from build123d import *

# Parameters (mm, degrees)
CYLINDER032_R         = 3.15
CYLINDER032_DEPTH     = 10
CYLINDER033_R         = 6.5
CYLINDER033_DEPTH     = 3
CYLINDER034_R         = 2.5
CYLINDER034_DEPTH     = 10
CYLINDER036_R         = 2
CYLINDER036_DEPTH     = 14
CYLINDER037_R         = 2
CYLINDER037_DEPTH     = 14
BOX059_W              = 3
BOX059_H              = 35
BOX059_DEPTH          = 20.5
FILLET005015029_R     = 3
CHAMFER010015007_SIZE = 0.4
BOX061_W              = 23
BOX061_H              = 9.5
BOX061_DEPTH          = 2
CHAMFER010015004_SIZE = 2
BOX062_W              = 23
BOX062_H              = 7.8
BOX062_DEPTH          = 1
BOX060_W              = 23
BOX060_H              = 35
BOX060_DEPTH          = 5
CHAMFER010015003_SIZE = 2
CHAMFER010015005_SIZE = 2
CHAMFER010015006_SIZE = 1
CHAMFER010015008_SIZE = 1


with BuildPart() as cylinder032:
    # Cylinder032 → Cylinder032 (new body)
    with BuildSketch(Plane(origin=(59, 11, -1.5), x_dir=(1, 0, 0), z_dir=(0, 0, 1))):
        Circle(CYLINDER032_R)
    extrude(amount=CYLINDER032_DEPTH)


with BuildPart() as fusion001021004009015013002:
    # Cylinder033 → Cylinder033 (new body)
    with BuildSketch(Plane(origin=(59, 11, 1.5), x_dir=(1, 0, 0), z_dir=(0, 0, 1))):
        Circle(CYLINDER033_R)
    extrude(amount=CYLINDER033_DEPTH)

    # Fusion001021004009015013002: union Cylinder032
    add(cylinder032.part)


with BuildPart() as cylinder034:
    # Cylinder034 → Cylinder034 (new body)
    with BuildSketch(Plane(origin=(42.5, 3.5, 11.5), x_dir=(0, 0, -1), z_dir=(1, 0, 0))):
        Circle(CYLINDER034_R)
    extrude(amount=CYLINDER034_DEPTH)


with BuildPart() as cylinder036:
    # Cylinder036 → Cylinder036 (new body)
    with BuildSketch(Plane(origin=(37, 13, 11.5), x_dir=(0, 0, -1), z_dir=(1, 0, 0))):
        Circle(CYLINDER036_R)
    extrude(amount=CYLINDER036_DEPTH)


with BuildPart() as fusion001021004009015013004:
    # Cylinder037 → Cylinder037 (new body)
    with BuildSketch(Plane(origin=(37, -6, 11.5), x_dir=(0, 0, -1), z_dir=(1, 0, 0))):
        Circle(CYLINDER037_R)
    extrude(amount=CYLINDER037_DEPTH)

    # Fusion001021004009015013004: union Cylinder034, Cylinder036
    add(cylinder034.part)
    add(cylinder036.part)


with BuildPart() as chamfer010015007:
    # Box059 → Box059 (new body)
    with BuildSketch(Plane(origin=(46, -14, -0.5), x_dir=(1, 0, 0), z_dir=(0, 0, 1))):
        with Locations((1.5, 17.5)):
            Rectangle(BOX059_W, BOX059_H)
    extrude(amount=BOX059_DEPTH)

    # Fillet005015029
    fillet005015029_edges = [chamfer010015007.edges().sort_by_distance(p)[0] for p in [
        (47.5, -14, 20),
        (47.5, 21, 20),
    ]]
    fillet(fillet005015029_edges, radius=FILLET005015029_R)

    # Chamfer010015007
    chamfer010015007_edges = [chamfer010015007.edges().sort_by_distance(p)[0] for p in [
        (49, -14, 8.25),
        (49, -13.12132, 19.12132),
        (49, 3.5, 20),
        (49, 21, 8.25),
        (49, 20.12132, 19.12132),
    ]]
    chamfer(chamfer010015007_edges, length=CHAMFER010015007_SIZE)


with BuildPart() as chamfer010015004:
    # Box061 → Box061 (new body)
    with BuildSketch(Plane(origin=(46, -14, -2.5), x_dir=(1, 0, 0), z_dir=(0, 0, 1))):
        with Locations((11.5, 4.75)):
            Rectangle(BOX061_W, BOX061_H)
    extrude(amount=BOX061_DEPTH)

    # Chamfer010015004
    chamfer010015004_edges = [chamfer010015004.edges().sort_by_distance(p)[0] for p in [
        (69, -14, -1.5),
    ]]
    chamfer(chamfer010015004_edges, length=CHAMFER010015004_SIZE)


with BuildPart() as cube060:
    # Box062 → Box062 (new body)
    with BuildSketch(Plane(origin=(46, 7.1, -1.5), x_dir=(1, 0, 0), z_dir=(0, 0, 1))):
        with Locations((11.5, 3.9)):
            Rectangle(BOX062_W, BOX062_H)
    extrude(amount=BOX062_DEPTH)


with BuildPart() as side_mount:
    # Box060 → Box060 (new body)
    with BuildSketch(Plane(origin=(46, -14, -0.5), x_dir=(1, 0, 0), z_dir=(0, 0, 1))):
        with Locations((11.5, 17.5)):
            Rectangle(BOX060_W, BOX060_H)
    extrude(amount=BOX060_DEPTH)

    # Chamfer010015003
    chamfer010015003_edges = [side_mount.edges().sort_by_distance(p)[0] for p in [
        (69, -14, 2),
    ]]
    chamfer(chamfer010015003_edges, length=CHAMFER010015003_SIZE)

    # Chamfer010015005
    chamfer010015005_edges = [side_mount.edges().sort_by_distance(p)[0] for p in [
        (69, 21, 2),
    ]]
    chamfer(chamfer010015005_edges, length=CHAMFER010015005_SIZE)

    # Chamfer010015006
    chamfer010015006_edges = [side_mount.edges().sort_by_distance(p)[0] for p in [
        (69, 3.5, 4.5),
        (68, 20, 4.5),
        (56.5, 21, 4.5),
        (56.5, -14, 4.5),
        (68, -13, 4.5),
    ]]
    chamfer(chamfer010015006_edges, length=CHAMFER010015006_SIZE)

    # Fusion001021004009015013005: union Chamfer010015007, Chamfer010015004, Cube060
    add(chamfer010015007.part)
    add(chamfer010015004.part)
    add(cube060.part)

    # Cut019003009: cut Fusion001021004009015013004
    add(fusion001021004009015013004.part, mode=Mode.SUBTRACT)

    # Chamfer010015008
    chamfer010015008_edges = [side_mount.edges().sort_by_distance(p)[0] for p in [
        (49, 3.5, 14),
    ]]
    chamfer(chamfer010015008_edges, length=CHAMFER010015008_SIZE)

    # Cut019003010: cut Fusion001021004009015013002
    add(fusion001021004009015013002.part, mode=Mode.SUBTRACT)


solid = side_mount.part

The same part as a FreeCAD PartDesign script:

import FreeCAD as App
import Part
import Sketcher


def edges_at(feature, points):
    """Names of the edges that pass closest to the given points."""
    edges = feature.Shape.Edges
    near = lambda p: min(range(len(edges)), key=lambda i: edges[i].distToShape(Part.Vertex(*p))[0])
    return sorted({f"Edge{near(p) + 1}" for p in points})


def add_polygon(sketch, points):
    """Adds a closed chain of lines whose ends are joined by coincident constraints."""
    first, n = sketch.GeometryCount, len(points)
    for a, b in zip(points, points[1:] + points[:1]):
        sketch.addGeometry(Part.LineSegment(App.Vector(*a, 0), App.Vector(*b, 0)), False)
    for i in range(n):
        sketch.addConstraint(Sketcher.Constraint("Coincident", first + i, 2, first + (i + 1) % n, 1))

doc = App.newDocument("Part")
params = doc.addObject("Spreadsheet::Sheet", "Params")
for row, (alias, value) in enumerate([
    ("sketch1_diameter", "6.3 mm"),
    ("pad1_length", "10 mm"),
    ("sketch2_diameter", "13 mm"),
    ("pad2_length", "3 mm"),
    ("sketch3_diameter", "5 mm"),
    ("pad3_length", "10 mm"),
    ("sketch4_diameter", "4 mm"),
    ("pad4_length", "14 mm"),
    ("sketch5_diameter", "4 mm"),
    ("pad5_length", "14 mm"),
    ("sketch6_width", "3 mm"),
    ("sketch6_height", "35 mm"),
    ("pad6_length", "20.5 mm"),
    ("fillet_radius", "3 mm"),
    ("chamfer_size", "0.4 mm"),
    ("sketch7_width", "23 mm"),
    ("sketch7_height", "9.5 mm"),
    ("pad7_length", "2 mm"),
    ("chamfer2_size", "2 mm"),
    ("sketch8_width", "23 mm"),
    ("sketch8_height", "7.8 mm"),
    ("pad8_length", "1 mm"),
    ("sketch9_width", "23 mm"),
    ("sketch9_height", "35 mm"),
    ("pad9_length", "5 mm"),
    ("chamfer3_size", "2 mm"),
    ("chamfer4_size", "2 mm"),
    ("chamfer5_size", "1 mm"),
    ("chamfer6_size", "1 mm"),
], start=1):
    params.set(f"A{row}", alias)
    params.set(f"B{row}", "=" + value)
    params.setAlias(f"B{row}", alias)

body = doc.addObject("PartDesign::Body", "Body")

# Sketch on XY plane
sketch1 = body.newObject("Sketcher::SketchObject", "Sketch")
sketch1.AttachmentSupport = (doc.getObject("XY_Plane"), [""])
sketch1.MapMode = "FlatFace"
sketch1.AttachmentOffset = App.Placement(App.Vector(0, 0, -1.5), App.Rotation())
sketch1.addGeometry(Part.Circle(App.Vector(59, 11, 0), App.Vector(0, 0, 1), 3.1), False)
sketch1.addConstraint(Sketcher.Constraint("Diameter", 0, 6.3))
sketch1.addConstraint(Sketcher.Constraint("DistanceX", -1, 1, 0, 3, 59.0))
sketch1.addConstraint(Sketcher.Constraint("DistanceY", -1, 1, 0, 3, 11.0))
sketch1.setExpression("Constraints[0]", "Params.sketch1_diameter")
pad1 = body.newObject("PartDesign::Pad", "Pad")
pad1.Profile = sketch1
pad1.setExpression("Length", "Params.pad1_length")
body2 = doc.addObject("PartDesign::Body", "Body001")

# Sketch on XY plane
sketch2 = body2.newObject("Sketcher::SketchObject", "Sketch001")
sketch2.AttachmentSupport = (doc.getObject("XY_Plane001"), [""])
sketch2.MapMode = "FlatFace"
sketch2.AttachmentOffset = App.Placement(App.Vector(0, 0, 1.5), App.Rotation())
sketch2.addGeometry(Part.Circle(App.Vector(59, 11, 0), App.Vector(0, 0, 1), 6), False)
sketch2.addConstraint(Sketcher.Constraint("Diameter", 0, 13.0))
sketch2.addConstraint(Sketcher.Constraint("DistanceX", -1, 1, 0, 3, 59.0))
sketch2.addConstraint(Sketcher.Constraint("DistanceY", -1, 1, 0, 3, 11.0))
sketch2.setExpression("Constraints[0]", "Params.sketch2_diameter")
pad2 = body2.newObject("PartDesign::Pad", "Pad001")
pad2.Profile = sketch2
pad2.setExpression("Length", "Params.pad2_length")
doc.recompute()

boolean = body2.newObject("PartDesign::Boolean", "Boolean")
boolean.Type = "Fuse"
boolean.addObjects([body])
body3 = doc.addObject("PartDesign::Body", "Body002")

# Sketch on YZ plane
sketch3 = body3.newObject("Sketcher::SketchObject", "Sketch002")
sketch3.AttachmentSupport = (doc.getObject("YZ_Plane002"), [""])
sketch3.MapMode = "FlatFace"
sketch3.AttachmentOffset = App.Placement(App.Vector(0, 0, 42.5), App.Rotation())
sketch3.addGeometry(Part.Circle(App.Vector(3.5, 11.5, 0), App.Vector(0, 0, 1), 2.5), False)
sketch3.addConstraint(Sketcher.Constraint("Diameter", 0, 5.0))
sketch3.addConstraint(Sketcher.Constraint("DistanceX", -1, 1, 0, 3, 3.5))
sketch3.addConstraint(Sketcher.Constraint("DistanceY", -1, 1, 0, 3, 11.5))
sketch3.setExpression("Constraints[0]", "Params.sketch3_diameter")
pad3 = body3.newObject("PartDesign::Pad", "Pad002")
pad3.Profile = sketch3
pad3.setExpression("Length", "Params.pad3_length")
body4 = doc.addObject("PartDesign::Body", "Body003")

# Sketch on YZ plane
sketch4 = body4.newObject("Sketcher::SketchObject", "Sketch003")
sketch4.AttachmentSupport = (doc.getObject("YZ_Plane003"), [""])
sketch4.MapMode = "FlatFace"
sketch4.AttachmentOffset = App.Placement(App.Vector(0, 0, 37), App.Rotation())
sketch4.addGeometry(Part.Circle(App.Vector(13, 11.5, 0), App.Vector(0, 0, 1), 2), False)
sketch4.addConstraint(Sketcher.Constraint("Diameter", 0, 4.0))
sketch4.addConstraint(Sketcher.Constraint("DistanceX", -1, 1, 0, 3, 13.0))
sketch4.addConstraint(Sketcher.Constraint("DistanceY", -1, 1, 0, 3, 11.5))
sketch4.setExpression("Constraints[0]", "Params.sketch4_diameter")
pad4 = body4.newObject("PartDesign::Pad", "Pad003")
pad4.Profile = sketch4
pad4.setExpression("Length", "Params.pad4_length")
body5 = doc.addObject("PartDesign::Body", "Body004")
body5.AllowCompound = True

# Sketch on YZ plane
sketch5 = body5.newObject("Sketcher::SketchObject", "Sketch004")
sketch5.AttachmentSupport = (doc.getObject("YZ_Plane004"), [""])
sketch5.MapMode = "FlatFace"
sketch5.AttachmentOffset = App.Placement(App.Vector(0, 0, 37), App.Rotation())
sketch5.addGeometry(Part.Circle(App.Vector(-6, 11.5, 0), App.Vector(0, 0, 1), 2), False)
sketch5.addConstraint(Sketcher.Constraint("Diameter", 0, 4.0))
sketch5.addConstraint(Sketcher.Constraint("DistanceX", 0, 3, -1, 1, 6.0))
sketch5.addConstraint(Sketcher.Constraint("DistanceY", -1, 1, 0, 3, 11.5))
sketch5.setExpression("Constraints[0]", "Params.sketch5_diameter")
pad5 = body5.newObject("PartDesign::Pad", "Pad004")
pad5.Profile = sketch5
pad5.setExpression("Length", "Params.pad5_length")
doc.recompute()

boolean2 = body5.newObject("PartDesign::Boolean", "Boolean001")
boolean2.Type = "Fuse"
boolean2.addObjects([body3])
doc.recompute()

boolean3 = body5.newObject("PartDesign::Boolean", "Boolean002")
boolean3.Type = "Fuse"
boolean3.addObjects([body4])
body6 = doc.addObject("PartDesign::Body", "Body005")

# Sketch on XY plane
sketch6 = body6.newObject("Sketcher::SketchObject", "Sketch005")
sketch6.AttachmentSupport = (doc.getObject("XY_Plane005"), [""])
sketch6.MapMode = "FlatFace"
sketch6.AttachmentOffset = App.Placement(App.Vector(0, 0, -0.5), App.Rotation())
add_polygon(sketch6, [(46, 21), (46, -14), (49, -14), (49, 21)])  # lines 0-3
sketch6.addConstraint(Sketcher.Constraint("Vertical", 0))
sketch6.addConstraint(Sketcher.Constraint("Horizontal", 1))
sketch6.addConstraint(Sketcher.Constraint("Vertical", 2))
sketch6.addConstraint(Sketcher.Constraint("Horizontal", 3))
sketch6.addConstraint(Sketcher.Constraint("DistanceX", 1, 1, 1, 2, 3.0))
sketch6.addConstraint(Sketcher.Constraint("DistanceY", 0, 2, 0, 1, 35.0))
sketch6.addConstraint(Sketcher.Constraint("DistanceX", -1, 1, 0, 2, 46.0))
sketch6.addConstraint(Sketcher.Constraint("DistanceY", 0, 2, -1, 1, 14.0))
sketch6.setExpression("Constraints[8]", "Params.sketch6_width")
sketch6.setExpression("Constraints[9]", "Params.sketch6_height")
pad6 = body6.newObject("PartDesign::Pad", "Pad005")
pad6.Profile = sketch6
pad6.setExpression("Length", "Params.pad6_length")
doc.recompute()

fillet = body6.newObject("PartDesign::Fillet", "Fillet")
fillet.Base = (pad6, edges_at(pad6, [(47.5, -14, 20), (47.5, 21, 20)]))
fillet.setExpression("Radius", "Params.fillet_radius")
doc.recompute()

chamfer = body6.newObject("PartDesign::Chamfer", "Chamfer")
chamfer.Base = (fillet, edges_at(fillet, [
    (49, -14, 8.25),
    (49, -13.121, 19.121),
    (49, 3.5, 20),
    (49, 21, 8.25),
    (49, 20.121, 19.121),
]))
chamfer.setExpression("Size", "Params.chamfer_size")
body7 = doc.addObject("PartDesign::Body", "Body006")

# Sketch on XY plane
sketch7 = body7.newObject("Sketcher::SketchObject", "Sketch006")
sketch7.AttachmentSupport = (doc.getObject("XY_Plane006"), [""])
sketch7.MapMode = "FlatFace"
sketch7.AttachmentOffset = App.Placement(App.Vector(0, 0, -2.5), App.Rotation())
add_polygon(sketch7, [(46, -4), (46, -14), (69, -14), (69, -4)])  # lines 0-3
sketch7.addConstraint(Sketcher.Constraint("Vertical", 0))
sketch7.addConstraint(Sketcher.Constraint("Horizontal", 1))
sketch7.addConstraint(Sketcher.Constraint("Vertical", 2))
sketch7.addConstraint(Sketcher.Constraint("Horizontal", 3))
sketch7.addConstraint(Sketcher.Constraint("DistanceX", 1, 1, 1, 2, 23.0))
sketch7.addConstraint(Sketcher.Constraint("DistanceY", 0, 2, 0, 1, 9.5))
sketch7.addConstraint(Sketcher.Constraint("DistanceX", -1, 1, 0, 2, 46.0))
sketch7.addConstraint(Sketcher.Constraint("DistanceY", 0, 2, -1, 1, 14.0))
sketch7.setExpression("Constraints[8]", "Params.sketch7_width")
sketch7.setExpression("Constraints[9]", "Params.sketch7_height")
pad7 = body7.newObject("PartDesign::Pad", "Pad006")
pad7.Profile = sketch7
pad7.setExpression("Length", "Params.pad7_length")
doc.recompute()

chamfer2 = body7.newObject("PartDesign::Chamfer", "Chamfer001")
chamfer2.Base = (pad7, edges_at(pad7, [(69, -14, -1.5)]))
chamfer2.setExpression("Size", "Params.chamfer2_size")
body8 = doc.addObject("PartDesign::Body", "Body007")

# Sketch on XY plane
sketch8 = body8.newObject("Sketcher::SketchObject", "Sketch007")
sketch8.AttachmentSupport = (doc.getObject("XY_Plane007"), [""])
sketch8.MapMode = "FlatFace"
sketch8.AttachmentOffset = App.Placement(App.Vector(0, 0, -1.5), App.Rotation())
add_polygon(sketch8, [(46, 15), (46, 7), (69, 7), (69, 15)])  # lines 0-3
sketch8.addConstraint(Sketcher.Constraint("Vertical", 0))
sketch8.addConstraint(Sketcher.Constraint("Horizontal", 1))
sketch8.addConstraint(Sketcher.Constraint("Vertical", 2))
sketch8.addConstraint(Sketcher.Constraint("Horizontal", 3))
sketch8.addConstraint(Sketcher.Constraint("DistanceX", 1, 1, 1, 2, 23.0))
sketch8.addConstraint(Sketcher.Constraint("DistanceY", 0, 2, 0, 1, 7.8))
sketch8.addConstraint(Sketcher.Constraint("DistanceX", -1, 1, 0, 2, 46.0))
sketch8.addConstraint(Sketcher.Constraint("DistanceY", -1, 1, 0, 2, 7.1))
sketch8.setExpression("Constraints[8]", "Params.sketch8_width")
sketch8.setExpression("Constraints[9]", "Params.sketch8_height")
pad8 = body8.newObject("PartDesign::Pad", "Pad007")
pad8.Profile = sketch8
pad8.setExpression("Length", "Params.pad8_length")
body9 = doc.addObject("PartDesign::Body", "Body008")

# Sketch on XY plane
sketch9 = body9.newObject("Sketcher::SketchObject", "Sketch008")
sketch9.AttachmentSupport = (doc.getObject("XY_Plane008"), [""])
sketch9.MapMode = "FlatFace"
sketch9.AttachmentOffset = App.Placement(App.Vector(0, 0, -0.5), App.Rotation())
add_polygon(sketch9, [(46, 21), (46, -14), (69, -14), (69, 21)])  # lines 0-3
sketch9.addConstraint(Sketcher.Constraint("Vertical", 0))
sketch9.addConstraint(Sketcher.Constraint("Horizontal", 1))
sketch9.addConstraint(Sketcher.Constraint("Vertical", 2))
sketch9.addConstraint(Sketcher.Constraint("Horizontal", 3))
sketch9.addConstraint(Sketcher.Constraint("DistanceX", 1, 1, 1, 2, 23.0))
sketch9.addConstraint(Sketcher.Constraint("DistanceY", 0, 2, 0, 1, 35.0))
sketch9.addConstraint(Sketcher.Constraint("DistanceX", -1, 1, 0, 2, 46.0))
sketch9.addConstraint(Sketcher.Constraint("DistanceY", 0, 2, -1, 1, 14.0))
sketch9.setExpression("Constraints[8]", "Params.sketch9_width")
sketch9.setExpression("Constraints[9]", "Params.sketch9_height")
pad9 = body9.newObject("PartDesign::Pad", "Pad008")
pad9.Profile = sketch9
pad9.setExpression("Length", "Params.pad9_length")
doc.recompute()

chamfer3 = body9.newObject("PartDesign::Chamfer", "Chamfer002")
chamfer3.Base = (pad9, edges_at(pad9, [(69, -14, 2)]))
chamfer3.setExpression("Size", "Params.chamfer3_size")
doc.recompute()

chamfer4 = body9.newObject("PartDesign::Chamfer", "Chamfer003")
chamfer4.Base = (chamfer3, edges_at(chamfer3, [(69, 21, 2)]))
chamfer4.setExpression("Size", "Params.chamfer4_size")
doc.recompute()

chamfer5 = body9.newObject("PartDesign::Chamfer", "Chamfer004")
chamfer5.Base = (chamfer4, edges_at(chamfer4, [
    (69, 3.5, 4.5),
    (68, 20, 4.5),
    (56.5, 21, 4.5),
    (56.5, -14, 4.5),
    (68, -13, 4.5),
]))
chamfer5.setExpression("Size", "Params.chamfer5_size")
doc.recompute()

boolean4 = body9.newObject("PartDesign::Boolean", "Boolean003")
boolean4.Type = "Fuse"
boolean4.addObjects([body6])
doc.recompute()

boolean5 = body9.newObject("PartDesign::Boolean", "Boolean004")
boolean5.Type = "Fuse"
boolean5.addObjects([body7])
doc.recompute()

boolean6 = body9.newObject("PartDesign::Boolean", "Boolean005")
boolean6.Type = "Fuse"
boolean6.addObjects([body8])
doc.recompute()

boolean7 = body9.newObject("PartDesign::Boolean", "Boolean006")
boolean7.Type = "Cut"
boolean7.addObjects([body5])
doc.recompute()

chamfer6 = body9.newObject("PartDesign::Chamfer", "Chamfer005")
chamfer6.Base = (boolean7, edges_at(boolean7, [(49, 3.5, 14)]))
chamfer6.setExpression("Size", "Params.chamfer6_size")
doc.recompute()

boolean8 = body9.newObject("PartDesign::Boolean", "Boolean007")
boolean8.Type = "Cut"
boolean8.addObjects([body2])

doc.recompute()
